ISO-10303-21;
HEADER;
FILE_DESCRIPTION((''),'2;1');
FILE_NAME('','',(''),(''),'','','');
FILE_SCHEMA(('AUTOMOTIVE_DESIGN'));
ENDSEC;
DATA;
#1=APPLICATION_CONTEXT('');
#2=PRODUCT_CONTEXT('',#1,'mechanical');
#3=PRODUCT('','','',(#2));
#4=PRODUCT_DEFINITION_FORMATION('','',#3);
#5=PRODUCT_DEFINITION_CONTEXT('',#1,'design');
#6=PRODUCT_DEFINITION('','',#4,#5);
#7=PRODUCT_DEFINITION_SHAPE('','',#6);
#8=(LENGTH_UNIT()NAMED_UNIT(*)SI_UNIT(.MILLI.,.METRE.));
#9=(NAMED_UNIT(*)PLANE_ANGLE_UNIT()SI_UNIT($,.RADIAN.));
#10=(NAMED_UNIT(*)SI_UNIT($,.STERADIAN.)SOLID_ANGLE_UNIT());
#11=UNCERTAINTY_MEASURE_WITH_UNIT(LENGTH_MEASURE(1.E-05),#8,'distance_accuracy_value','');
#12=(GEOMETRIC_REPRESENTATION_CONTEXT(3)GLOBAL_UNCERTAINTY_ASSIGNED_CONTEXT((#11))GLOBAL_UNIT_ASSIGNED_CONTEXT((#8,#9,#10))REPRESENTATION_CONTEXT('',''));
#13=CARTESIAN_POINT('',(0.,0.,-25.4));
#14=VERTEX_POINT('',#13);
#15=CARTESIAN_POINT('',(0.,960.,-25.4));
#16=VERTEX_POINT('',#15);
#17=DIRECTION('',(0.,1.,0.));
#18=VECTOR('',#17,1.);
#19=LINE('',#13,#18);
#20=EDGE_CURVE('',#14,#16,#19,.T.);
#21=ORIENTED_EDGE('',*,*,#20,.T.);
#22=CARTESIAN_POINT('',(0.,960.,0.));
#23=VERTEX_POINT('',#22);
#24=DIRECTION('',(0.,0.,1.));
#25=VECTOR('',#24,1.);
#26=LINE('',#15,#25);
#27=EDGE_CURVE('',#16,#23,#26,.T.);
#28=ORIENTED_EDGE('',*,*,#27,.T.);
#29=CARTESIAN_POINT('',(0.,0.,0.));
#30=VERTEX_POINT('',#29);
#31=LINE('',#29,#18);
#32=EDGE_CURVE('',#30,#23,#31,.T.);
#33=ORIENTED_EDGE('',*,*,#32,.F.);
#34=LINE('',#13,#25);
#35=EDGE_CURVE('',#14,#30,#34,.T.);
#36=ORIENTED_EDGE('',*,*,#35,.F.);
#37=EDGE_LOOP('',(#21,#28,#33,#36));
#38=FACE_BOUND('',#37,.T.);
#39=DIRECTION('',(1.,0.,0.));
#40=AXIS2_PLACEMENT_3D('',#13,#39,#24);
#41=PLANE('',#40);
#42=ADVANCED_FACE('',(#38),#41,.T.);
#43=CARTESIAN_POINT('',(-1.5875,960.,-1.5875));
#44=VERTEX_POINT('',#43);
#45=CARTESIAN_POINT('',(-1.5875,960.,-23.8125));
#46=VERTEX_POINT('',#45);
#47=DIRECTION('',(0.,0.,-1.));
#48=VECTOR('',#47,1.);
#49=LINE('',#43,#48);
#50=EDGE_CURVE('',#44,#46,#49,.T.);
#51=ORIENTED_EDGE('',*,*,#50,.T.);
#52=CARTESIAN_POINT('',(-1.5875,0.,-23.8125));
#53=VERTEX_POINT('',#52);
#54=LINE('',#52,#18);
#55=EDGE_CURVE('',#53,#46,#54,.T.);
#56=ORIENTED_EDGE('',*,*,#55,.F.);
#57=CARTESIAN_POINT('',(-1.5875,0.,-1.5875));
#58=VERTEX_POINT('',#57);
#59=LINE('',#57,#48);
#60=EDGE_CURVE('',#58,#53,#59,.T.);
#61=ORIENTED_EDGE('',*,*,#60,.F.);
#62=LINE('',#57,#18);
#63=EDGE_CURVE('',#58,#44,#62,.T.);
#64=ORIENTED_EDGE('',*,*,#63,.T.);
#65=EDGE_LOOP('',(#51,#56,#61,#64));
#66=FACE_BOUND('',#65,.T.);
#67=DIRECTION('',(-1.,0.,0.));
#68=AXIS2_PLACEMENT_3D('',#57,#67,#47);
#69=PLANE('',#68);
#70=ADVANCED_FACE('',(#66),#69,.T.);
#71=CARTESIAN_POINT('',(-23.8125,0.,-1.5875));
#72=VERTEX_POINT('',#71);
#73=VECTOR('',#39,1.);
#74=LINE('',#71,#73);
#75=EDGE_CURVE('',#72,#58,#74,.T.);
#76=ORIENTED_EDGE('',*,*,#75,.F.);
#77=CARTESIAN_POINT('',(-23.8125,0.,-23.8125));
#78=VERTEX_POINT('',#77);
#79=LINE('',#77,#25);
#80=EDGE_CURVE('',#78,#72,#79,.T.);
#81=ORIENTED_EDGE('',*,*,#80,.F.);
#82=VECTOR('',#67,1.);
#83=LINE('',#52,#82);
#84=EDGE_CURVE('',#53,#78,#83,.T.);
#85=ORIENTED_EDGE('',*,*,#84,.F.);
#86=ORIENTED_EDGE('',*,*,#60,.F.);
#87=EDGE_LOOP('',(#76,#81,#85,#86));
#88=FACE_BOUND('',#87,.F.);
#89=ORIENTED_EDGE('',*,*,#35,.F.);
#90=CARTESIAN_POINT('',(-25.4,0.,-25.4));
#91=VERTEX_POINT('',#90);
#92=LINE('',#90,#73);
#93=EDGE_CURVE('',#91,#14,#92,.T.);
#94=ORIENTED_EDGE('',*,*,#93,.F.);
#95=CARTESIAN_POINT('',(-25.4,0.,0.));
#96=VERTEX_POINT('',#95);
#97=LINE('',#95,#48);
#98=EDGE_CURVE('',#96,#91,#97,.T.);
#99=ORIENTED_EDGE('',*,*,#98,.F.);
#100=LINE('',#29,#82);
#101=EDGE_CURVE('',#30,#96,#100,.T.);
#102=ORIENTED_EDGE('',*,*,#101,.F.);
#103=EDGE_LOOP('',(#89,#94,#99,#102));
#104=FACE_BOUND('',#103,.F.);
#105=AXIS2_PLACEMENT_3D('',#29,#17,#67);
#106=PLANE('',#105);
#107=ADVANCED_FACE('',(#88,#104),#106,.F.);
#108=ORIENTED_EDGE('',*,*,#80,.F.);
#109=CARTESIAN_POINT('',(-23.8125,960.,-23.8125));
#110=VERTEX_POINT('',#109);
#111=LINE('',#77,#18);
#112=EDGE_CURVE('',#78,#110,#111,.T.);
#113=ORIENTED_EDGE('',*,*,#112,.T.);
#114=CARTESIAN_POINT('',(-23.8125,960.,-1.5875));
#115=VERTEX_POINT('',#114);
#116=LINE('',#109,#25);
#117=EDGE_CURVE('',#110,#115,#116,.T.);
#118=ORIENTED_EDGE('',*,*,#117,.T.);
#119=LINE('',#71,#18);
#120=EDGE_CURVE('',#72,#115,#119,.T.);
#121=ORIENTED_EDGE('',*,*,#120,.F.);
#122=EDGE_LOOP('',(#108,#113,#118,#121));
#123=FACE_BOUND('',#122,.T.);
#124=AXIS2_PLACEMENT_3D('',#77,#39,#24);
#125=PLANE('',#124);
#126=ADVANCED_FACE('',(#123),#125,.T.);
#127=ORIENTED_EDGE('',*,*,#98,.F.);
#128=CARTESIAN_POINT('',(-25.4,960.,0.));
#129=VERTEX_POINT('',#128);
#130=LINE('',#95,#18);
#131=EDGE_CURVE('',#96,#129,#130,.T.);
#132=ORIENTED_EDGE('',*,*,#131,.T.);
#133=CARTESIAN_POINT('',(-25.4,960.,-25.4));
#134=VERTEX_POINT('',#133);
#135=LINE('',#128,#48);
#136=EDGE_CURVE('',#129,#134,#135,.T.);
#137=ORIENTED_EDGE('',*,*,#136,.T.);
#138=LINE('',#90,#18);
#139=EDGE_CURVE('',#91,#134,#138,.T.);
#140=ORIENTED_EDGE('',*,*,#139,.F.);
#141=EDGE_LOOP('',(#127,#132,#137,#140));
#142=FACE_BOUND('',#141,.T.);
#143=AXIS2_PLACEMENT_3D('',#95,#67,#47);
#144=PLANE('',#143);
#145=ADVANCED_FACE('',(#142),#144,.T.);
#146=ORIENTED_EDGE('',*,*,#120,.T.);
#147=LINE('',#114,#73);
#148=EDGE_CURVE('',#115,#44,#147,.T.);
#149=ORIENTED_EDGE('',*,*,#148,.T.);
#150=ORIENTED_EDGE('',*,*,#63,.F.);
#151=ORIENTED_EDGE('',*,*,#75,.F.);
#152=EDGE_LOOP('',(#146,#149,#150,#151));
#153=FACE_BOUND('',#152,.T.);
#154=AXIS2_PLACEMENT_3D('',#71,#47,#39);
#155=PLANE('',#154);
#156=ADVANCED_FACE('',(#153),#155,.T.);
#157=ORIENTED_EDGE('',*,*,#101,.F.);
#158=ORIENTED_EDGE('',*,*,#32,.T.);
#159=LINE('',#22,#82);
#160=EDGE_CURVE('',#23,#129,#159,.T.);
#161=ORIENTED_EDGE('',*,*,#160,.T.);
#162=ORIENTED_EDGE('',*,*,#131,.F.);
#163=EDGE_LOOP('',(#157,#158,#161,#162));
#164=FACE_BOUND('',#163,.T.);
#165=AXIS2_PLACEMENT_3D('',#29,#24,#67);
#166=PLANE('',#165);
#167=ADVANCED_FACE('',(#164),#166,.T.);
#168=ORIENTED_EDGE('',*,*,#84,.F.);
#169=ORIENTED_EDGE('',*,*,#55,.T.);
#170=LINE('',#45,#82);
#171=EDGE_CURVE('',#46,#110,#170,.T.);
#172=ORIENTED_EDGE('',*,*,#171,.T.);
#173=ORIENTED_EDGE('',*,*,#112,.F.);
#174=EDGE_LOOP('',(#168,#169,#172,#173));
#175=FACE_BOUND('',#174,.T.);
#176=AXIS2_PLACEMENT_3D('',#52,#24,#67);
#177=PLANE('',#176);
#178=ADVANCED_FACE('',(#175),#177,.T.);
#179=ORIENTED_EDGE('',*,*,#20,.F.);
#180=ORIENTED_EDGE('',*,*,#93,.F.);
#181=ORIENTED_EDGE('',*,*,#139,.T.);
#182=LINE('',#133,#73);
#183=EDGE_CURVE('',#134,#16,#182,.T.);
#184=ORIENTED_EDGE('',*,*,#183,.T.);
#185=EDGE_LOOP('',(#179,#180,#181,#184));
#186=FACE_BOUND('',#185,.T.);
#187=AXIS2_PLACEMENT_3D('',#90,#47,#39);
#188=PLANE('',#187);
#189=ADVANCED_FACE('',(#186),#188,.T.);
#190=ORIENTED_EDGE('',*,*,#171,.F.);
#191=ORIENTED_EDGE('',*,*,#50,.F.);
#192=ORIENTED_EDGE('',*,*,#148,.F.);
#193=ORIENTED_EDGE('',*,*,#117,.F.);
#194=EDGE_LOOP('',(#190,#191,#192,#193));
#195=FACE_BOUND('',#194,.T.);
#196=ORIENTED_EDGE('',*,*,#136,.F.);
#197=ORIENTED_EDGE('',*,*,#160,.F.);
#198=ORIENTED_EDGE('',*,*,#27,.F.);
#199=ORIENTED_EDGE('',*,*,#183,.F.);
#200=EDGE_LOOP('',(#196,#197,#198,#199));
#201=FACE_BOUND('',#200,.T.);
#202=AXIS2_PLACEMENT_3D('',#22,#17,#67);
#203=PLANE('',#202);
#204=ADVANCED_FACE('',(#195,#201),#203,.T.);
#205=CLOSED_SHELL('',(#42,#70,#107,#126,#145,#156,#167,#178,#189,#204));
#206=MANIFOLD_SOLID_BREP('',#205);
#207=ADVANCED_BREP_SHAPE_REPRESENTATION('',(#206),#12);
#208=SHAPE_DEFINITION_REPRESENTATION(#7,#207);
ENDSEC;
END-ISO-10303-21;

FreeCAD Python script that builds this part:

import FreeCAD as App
import Part
import Sketcher

V = App.Vector
Q = App.Units.Quantity

doc = App.newDocument("Part")
params = doc.addObject("Spreadsheet::Sheet", "Params")
for row, (alias, value) in enumerate([
    ("sketch1_width", "1 in"),
    ("pad1_length", "960 mm"),
], start=1):
    params.set(f"A{row}", alias)
    params.set(f"B{row}", "=" + value)
    params.setAlias(f"B{row}", alias)

body = doc.addObject("PartDesign::Body", "Body")

# Sketch on XZ plane
sketch1 = body.newObject("Sketcher::SketchObject", "Sketch")
sketch1.AttachmentSupport = (doc.getObject("XZ_Plane"), [""])
sketch1.MapMode = "FlatFace"
sketch1.addGeometry([
    Part.LineSegment(V(-25, 0, 0), V(0, 0, 0)),  # 0
    Part.LineSegment(V(0, 0, 0), V(0, -25, 0)),  # 1
    Part.LineSegment(V(0, -25, 0), V(-25, -25, 0)),  # 2
    Part.LineSegment(V(-25, -25, 0), V(-25, 0, 0)),  # 3
    Part.LineSegment(V(-2, -2, 0), V(-24, -2, 0)),  # 4
    Part.LineSegment(V(-24, -2, 0), V(-24, -24, 0)),  # 5
    Part.LineSegment(V(-24, -24, 0), V(-2, -24, 0)),  # 6
    Part.LineSegment(V(-2, -24, 0), V(-2, -2, 0)),  # 7
], False)
sketch1.addConstraint([
    Sketcher.Constraint("Coincident", 0, 2, 1, 1),
    Sketcher.Constraint("Coincident", 1, 2, 2, 1),
    Sketcher.Constraint("Coincident", 2, 2, 3, 1),
    Sketcher.Constraint("Coincident", 3, 2, 0, 1),
    Sketcher.Constraint("Coincident", 4, 2, 5, 1),
    Sketcher.Constraint("Coincident", 5, 2, 6, 1),
    Sketcher.Constraint("Coincident", 6, 2, 7, 1),
    Sketcher.Constraint("Coincident", 7, 2, 4, 1),
    Sketcher.Constraint("Horizontal", 0),
    Sketcher.Constraint("Vertical", 1),
    Sketcher.Constraint("Horizontal", 2),
    Sketcher.Constraint("Vertical", 3),
    Sketcher.Constraint("Horizontal", 4),
    Sketcher.Constraint("Vertical", 5),
    Sketcher.Constraint("Horizontal", 6),
    Sketcher.Constraint("Vertical", 7),
    Sketcher.Constraint("Coincident", 0, 2, -1, 1),
    Sketcher.Constraint("Equal", 2, 1),
    Sketcher.Constraint("Equal", 6, 5),
    Sketcher.Constraint("DistanceX", 0, 1, 0, 2, Q("1 in")),
    Sketcher.Constraint("DistanceY", 4, 2, -1, 1, Q("0.0625 in")),
    Sketcher.Constraint("DistanceX", 6, 2, -1, 1, Q("0.0625 in")),
    Sketcher.Constraint("DistanceX", 3, 2, 4, 2, Q("0.0625 in")),
])
sketch1.setExpression("Constraints[19]", "Params.sketch1_width")
pad1 = body.newObject("PartDesign::Pad", "Pad")
pad1.Profile = sketch1
pad1.setExpression("Length", "Params.pad1_length")
pad1.Reversed = True

doc.recompute()
